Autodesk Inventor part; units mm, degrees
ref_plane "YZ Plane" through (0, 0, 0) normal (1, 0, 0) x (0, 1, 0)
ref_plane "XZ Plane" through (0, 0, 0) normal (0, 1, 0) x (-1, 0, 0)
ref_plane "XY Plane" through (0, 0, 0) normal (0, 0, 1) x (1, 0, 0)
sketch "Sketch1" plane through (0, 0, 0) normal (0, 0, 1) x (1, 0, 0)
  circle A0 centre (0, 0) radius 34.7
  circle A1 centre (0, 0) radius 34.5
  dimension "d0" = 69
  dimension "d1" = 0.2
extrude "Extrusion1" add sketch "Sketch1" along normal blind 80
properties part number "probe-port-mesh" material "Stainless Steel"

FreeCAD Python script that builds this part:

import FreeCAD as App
import Part
import Sketcher
from FreeCAD import Vector
Q = App.Units.Quantity

doc = App.newDocument("Part")
body = doc.addObject("PartDesign::Body", "Body")

sketch1 = doc.addObject("Sketcher::SketchObject", "Sketch")
body.addObject(sketch1)
sketch1.AttachmentSupport = (doc.XY_Plane, [""])
sketch1.MapMode = "FlatFace"
sketch1.addGeometry([
    Part.Circle(Vector(0, 0, 0), Vector(0, 0, 1), 35),
    Part.Circle(Vector(0, 0, 0), Vector(0, 0, 1), 34),
], False)
sketch1.addConstraint([
    Sketcher.Constraint("Coincident", 0, 3, -1, 1),
    Sketcher.Constraint("Coincident", 1, 3, -1, 1),
    Sketcher.Constraint("Diameter", 1, Q("69 mm")),
    Sketcher.Constraint("Diameter", 0, Q("69.4 mm")),
])
pad1 = doc.addObject("PartDesign::Pad", "Pad")
body.addObject(pad1)
pad1.Profile = sketch1
pad1.Length = 80

doc.recompute()
